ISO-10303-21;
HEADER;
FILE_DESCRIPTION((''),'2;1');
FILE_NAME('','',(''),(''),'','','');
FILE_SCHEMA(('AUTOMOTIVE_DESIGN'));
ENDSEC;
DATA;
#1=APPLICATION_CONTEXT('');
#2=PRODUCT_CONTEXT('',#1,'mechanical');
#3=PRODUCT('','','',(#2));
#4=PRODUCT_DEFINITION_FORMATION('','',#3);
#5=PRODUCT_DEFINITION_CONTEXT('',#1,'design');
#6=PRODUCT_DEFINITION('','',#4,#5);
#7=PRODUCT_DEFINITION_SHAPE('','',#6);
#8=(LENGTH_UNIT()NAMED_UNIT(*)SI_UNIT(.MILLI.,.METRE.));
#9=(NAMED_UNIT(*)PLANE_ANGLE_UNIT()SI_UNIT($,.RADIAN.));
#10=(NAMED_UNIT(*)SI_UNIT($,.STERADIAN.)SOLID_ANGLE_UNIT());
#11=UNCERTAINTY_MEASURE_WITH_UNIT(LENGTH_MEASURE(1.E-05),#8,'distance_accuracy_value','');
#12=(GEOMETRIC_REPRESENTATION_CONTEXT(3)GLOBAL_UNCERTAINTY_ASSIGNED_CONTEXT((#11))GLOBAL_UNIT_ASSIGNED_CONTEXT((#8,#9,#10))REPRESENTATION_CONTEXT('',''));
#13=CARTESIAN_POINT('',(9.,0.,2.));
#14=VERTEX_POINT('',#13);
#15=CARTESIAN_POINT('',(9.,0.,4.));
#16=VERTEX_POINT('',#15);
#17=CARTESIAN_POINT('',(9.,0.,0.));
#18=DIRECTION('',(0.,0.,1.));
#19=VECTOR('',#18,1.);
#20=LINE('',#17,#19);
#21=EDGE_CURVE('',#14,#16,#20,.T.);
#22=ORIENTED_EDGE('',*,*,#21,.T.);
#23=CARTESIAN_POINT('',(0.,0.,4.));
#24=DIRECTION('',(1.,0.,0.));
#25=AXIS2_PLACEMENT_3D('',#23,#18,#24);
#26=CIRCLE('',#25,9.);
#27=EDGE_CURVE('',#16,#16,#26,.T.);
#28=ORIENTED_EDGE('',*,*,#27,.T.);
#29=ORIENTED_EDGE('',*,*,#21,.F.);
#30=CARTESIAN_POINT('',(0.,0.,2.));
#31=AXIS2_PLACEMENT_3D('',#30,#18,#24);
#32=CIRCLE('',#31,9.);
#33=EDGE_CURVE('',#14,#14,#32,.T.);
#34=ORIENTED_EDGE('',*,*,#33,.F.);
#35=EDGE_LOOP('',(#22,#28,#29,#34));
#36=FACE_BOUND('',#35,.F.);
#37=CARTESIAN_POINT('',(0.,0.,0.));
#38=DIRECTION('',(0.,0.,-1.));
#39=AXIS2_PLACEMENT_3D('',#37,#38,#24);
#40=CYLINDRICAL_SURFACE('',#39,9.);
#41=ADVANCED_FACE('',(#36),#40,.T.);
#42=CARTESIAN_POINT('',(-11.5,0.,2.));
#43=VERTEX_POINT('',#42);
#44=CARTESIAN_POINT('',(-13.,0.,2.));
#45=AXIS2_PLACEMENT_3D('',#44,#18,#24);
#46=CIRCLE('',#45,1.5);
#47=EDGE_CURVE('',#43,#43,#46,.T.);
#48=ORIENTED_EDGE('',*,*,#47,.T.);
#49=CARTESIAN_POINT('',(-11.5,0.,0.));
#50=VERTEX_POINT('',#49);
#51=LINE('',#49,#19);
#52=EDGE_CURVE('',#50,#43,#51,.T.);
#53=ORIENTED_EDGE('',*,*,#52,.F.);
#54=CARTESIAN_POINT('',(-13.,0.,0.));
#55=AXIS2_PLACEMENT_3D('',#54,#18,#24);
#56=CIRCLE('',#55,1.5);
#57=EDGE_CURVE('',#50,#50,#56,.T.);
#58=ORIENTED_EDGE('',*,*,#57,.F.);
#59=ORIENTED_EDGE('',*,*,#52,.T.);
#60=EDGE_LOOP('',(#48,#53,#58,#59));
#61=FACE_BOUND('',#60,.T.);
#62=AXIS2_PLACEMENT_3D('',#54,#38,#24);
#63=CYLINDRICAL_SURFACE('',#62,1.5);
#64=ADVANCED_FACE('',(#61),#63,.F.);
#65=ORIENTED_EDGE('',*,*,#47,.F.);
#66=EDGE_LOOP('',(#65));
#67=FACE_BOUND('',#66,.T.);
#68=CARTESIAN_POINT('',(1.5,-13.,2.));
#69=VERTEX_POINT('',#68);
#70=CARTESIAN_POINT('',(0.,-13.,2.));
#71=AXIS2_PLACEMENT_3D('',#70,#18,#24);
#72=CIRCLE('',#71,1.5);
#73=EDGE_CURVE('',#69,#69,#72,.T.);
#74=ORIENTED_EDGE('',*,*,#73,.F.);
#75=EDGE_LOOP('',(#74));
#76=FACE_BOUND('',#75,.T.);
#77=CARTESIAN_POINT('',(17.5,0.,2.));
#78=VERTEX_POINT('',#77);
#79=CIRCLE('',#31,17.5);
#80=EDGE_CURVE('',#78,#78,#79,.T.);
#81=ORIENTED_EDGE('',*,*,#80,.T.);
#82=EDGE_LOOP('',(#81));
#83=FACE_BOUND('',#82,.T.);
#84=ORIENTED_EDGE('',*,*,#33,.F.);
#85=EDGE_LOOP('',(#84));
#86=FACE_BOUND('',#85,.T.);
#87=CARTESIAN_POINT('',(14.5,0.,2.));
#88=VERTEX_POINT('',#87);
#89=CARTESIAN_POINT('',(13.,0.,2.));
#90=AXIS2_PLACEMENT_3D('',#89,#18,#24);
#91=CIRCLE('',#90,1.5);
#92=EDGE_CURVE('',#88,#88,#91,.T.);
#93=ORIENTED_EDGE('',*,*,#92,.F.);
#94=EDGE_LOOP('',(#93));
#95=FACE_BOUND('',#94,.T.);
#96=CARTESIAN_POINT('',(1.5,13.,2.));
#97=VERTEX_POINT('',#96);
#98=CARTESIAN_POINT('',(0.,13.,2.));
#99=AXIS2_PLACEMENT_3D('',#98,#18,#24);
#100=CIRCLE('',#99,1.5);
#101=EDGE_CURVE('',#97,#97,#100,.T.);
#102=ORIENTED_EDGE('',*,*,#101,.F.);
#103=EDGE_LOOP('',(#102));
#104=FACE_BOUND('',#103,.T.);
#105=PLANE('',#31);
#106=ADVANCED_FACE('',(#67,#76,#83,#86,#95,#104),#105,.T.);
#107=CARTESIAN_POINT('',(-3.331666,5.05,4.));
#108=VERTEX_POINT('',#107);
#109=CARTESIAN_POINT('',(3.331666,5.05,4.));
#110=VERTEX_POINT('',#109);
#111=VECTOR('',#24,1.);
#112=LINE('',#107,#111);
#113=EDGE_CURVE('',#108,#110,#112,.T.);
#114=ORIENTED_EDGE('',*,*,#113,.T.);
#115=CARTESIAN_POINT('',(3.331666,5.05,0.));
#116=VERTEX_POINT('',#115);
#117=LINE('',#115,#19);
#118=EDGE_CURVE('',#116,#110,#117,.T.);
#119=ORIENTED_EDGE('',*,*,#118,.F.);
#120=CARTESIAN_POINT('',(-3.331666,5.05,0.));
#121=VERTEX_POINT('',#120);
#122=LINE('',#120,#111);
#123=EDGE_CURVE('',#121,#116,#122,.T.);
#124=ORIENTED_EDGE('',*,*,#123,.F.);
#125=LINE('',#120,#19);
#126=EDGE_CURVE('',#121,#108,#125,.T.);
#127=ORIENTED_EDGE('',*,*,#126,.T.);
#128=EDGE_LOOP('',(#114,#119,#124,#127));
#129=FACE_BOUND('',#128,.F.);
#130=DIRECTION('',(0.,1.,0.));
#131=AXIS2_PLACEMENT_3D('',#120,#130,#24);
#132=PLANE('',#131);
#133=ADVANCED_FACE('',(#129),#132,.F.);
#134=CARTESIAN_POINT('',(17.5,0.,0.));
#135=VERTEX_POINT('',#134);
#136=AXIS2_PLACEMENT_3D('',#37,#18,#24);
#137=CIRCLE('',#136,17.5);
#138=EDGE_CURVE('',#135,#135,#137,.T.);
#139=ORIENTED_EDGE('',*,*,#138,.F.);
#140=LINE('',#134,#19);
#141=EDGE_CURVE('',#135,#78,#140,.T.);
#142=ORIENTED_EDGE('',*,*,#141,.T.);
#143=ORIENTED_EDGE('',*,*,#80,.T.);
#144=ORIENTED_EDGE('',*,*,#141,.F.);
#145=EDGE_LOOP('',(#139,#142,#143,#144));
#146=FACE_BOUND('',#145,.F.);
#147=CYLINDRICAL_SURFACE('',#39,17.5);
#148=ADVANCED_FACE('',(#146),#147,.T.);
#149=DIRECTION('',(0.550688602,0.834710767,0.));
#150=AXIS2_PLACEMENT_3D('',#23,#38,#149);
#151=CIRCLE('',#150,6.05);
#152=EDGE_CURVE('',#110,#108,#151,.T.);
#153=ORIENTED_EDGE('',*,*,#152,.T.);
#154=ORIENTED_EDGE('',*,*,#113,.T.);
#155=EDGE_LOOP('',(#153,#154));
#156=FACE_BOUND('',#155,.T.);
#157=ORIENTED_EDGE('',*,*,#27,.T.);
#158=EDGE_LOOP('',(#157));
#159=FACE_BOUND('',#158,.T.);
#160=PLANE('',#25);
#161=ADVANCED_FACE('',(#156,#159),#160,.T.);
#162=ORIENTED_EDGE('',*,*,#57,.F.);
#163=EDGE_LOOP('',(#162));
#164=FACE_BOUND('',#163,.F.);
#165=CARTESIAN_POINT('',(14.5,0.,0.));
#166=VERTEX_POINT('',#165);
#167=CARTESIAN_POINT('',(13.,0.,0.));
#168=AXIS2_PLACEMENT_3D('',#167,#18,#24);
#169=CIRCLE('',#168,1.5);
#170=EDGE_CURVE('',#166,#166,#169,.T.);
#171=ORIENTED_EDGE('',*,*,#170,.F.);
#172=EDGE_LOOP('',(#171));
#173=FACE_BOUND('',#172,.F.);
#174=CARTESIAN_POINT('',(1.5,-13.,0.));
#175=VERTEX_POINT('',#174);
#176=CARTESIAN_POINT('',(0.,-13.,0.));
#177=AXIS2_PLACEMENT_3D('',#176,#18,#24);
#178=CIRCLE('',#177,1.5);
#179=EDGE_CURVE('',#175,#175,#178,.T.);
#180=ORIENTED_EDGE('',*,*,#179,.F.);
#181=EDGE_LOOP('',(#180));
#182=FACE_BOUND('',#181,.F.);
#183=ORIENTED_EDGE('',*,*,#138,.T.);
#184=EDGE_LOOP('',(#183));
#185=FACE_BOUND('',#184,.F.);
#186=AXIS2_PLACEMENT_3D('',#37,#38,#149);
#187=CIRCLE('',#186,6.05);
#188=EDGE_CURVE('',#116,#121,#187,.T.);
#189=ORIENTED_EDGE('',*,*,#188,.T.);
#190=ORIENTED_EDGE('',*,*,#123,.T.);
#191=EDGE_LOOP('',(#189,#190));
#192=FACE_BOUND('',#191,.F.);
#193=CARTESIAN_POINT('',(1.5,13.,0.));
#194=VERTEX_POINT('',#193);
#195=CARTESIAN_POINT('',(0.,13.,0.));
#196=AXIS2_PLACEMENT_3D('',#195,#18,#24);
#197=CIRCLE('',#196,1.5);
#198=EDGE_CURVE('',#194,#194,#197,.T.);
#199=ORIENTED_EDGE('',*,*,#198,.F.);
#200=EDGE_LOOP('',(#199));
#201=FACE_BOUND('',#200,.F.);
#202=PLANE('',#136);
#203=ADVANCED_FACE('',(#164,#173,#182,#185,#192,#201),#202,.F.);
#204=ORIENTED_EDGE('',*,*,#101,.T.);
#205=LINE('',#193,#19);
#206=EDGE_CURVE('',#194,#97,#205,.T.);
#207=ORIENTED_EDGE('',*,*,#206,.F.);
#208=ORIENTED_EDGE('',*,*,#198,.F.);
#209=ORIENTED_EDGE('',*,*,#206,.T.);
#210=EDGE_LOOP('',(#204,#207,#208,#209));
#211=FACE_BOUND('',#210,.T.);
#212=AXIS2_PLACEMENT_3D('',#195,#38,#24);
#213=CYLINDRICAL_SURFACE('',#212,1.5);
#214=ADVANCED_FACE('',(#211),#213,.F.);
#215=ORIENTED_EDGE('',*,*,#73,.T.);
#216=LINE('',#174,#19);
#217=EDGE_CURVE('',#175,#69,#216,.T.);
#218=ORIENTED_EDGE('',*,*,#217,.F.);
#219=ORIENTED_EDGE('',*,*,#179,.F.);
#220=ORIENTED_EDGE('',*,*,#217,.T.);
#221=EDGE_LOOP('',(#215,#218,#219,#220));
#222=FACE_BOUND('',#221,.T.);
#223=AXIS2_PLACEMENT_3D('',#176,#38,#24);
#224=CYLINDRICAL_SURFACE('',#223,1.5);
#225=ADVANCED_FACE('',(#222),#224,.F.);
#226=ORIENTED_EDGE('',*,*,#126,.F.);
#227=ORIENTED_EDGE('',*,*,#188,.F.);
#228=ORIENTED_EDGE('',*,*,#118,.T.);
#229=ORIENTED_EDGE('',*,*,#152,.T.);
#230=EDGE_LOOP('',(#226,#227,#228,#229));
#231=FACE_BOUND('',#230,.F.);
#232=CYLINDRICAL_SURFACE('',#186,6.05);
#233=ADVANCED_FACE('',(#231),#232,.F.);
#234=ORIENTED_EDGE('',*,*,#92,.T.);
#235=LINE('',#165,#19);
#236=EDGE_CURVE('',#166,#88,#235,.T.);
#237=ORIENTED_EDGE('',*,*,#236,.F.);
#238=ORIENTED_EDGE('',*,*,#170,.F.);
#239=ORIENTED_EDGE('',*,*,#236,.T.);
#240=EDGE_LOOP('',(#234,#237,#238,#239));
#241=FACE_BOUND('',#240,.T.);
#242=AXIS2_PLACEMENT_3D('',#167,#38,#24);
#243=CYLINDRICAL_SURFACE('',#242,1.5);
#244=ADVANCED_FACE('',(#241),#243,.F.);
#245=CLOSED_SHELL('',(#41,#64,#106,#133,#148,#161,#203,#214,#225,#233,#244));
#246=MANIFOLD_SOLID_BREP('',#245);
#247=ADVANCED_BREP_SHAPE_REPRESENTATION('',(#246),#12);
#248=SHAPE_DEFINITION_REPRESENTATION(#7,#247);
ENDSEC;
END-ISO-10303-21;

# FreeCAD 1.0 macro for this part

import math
import FreeCAD as App
import Part
import Sketcher
Q = App.Units.Quantity

doc = App.newDocument("Part")
body = doc.addObject("PartDesign::Body", "Body")

# Sketch on XY plane
sketch1 = doc.addObject("Sketcher::SketchObject", "Sketch")
body.addObject(sketch1)
sketch1.AttachmentSupport = (doc.XY_Plane, [""])
sketch1.MapMode = "FlatFace"
sketch1.addGeometry([
    Part.Circle(App.Vector(0, 0, 0), App.Vector(0, 0, 1), 9),
    Part.LineSegment(App.Vector(-3, 5, 0), App.Vector(3, 5, 0)),
    Part.ArcOfCircle(Part.Circle(App.Vector(0, 0, 0), App.Vector(0, 0, 1), 6), math.radians(123), math.radians(417)),
], False)
sketch1.addConstraint([
    Sketcher.Constraint("Coincident", 1, 1, 2, 1),
    Sketcher.Constraint("Coincident", 2, 2, 1, 2),
    Sketcher.Constraint("Horizontal", 1),
    Sketcher.Constraint("Coincident", 0, 3, -1, 1),
    Sketcher.Constraint("Coincident", 2, 3, -1, 1),
    Sketcher.Constraint("Diameter", 0, Q("18 mm")),
    Sketcher.Constraint("Radius", 2, Q("6.05 mm")),
    Sketcher.Constraint("DistanceY", -1, 1, 1, 1, Q("5.05 mm")),
])
pad1 = doc.addObject("PartDesign::Pad", "Pad")
body.addObject(pad1)
pad1.Profile = sketch1
pad1.Length = 4

# Sketch on XY plane
sketch2 = doc.addObject("Sketcher::SketchObject", "Sketch001")
body.addObject(sketch2)
sketch2.AttachmentSupport = (doc.XY_Plane, [""])
sketch2.MapMode = "FlatFace"
sketch2.addGeometry([
    Part.Circle(App.Vector(0, 0, 0), App.Vector(0, 0, 1), 17.5),  # 0
    Part.Circle(App.Vector(0, -13, 0), App.Vector(0, 0, 1), 1.5),  # 1
    Part.Circle(App.Vector(-13, 0, 0), App.Vector(0, 0, 1), 1.5),  # 2
    Part.Circle(App.Vector(0, 0, 0), App.Vector(0, 0, 1), 9),  # 3
    Part.Circle(App.Vector(13, 0, 0), App.Vector(0, 0, 1), 1.5),  # 4
    Part.Circle(App.Vector(0, 13, 0), App.Vector(0, 0, 1), 1.5),  # 5
], False)
sketch2.addConstraint([
    Sketcher.Constraint("Coincident", 0, 3, -1, 1),
    Sketcher.Constraint("Coincident", 3, 3, -1, 1),
    Sketcher.Constraint("Equal", 1, 2),
    Sketcher.Constraint("Equal", 2, 4),
    Sketcher.Constraint("Equal", 4, 5),
    Sketcher.Constraint("Symmetric", 2, 3, 4, 3, -1, 1),
    Sketcher.Constraint("Symmetric", 1, 3, 5, 3, -1, 1),
    Sketcher.Constraint("PointOnObject", 1, 3, -2),
    Sketcher.Constraint("PointOnObject", 2, 3, -1),
    Sketcher.Constraint("Diameter", 0, Q("35 mm")),
    Sketcher.Constraint("Diameter", 1, Q("3 mm")),
    Sketcher.Constraint("Diameter", 3, Q("18 mm")),
    Sketcher.Constraint("DistanceY", 1, 3, -1, 1, Q("13 mm")),
    Sketcher.Constraint("DistanceX", 2, 3, -1, 1, Q("13 mm")),
])
pad2 = doc.addObject("PartDesign::Pad", "Pad001")
body.addObject(pad2)
pad2.Profile = sketch2
pad2.Length = 2

doc.recompute()
